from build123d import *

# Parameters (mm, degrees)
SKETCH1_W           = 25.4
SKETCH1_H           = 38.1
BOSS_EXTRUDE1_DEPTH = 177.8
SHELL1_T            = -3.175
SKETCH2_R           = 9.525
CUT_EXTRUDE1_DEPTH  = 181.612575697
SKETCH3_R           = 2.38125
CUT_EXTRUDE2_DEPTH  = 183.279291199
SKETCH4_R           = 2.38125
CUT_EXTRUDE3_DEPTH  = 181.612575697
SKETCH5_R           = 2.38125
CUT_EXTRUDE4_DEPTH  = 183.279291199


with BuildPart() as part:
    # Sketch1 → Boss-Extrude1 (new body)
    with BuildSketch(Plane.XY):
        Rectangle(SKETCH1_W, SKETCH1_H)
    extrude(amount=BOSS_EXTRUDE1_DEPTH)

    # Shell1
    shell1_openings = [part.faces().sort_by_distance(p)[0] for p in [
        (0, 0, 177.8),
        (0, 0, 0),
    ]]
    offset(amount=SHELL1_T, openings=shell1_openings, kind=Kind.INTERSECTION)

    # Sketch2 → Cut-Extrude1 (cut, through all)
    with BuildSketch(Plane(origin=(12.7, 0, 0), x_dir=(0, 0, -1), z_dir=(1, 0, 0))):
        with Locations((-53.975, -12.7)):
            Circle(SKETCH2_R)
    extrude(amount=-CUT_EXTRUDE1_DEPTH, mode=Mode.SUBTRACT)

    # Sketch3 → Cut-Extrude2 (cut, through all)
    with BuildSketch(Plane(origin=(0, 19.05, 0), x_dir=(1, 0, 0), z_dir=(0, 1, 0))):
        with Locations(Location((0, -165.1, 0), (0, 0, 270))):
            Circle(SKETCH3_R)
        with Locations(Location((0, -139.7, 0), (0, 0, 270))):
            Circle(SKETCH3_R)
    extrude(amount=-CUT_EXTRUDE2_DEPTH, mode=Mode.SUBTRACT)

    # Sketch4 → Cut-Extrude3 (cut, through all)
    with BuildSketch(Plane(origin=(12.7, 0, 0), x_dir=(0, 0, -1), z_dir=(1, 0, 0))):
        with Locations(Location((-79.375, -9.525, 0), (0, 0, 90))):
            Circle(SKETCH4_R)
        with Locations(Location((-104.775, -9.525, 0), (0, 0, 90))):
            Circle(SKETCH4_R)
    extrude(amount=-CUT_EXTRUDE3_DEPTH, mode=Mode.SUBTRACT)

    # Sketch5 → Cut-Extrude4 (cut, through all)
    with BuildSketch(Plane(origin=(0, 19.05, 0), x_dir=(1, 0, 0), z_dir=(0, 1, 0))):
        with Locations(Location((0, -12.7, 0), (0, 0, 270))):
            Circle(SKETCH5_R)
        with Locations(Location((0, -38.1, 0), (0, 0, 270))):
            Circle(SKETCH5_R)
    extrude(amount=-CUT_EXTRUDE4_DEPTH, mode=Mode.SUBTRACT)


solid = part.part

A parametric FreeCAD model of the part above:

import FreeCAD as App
import Part
import Sketcher
from FreeCAD import Vector
Q = App.Units.Quantity


def faces_at(feature, points):
    """Names of the faces that lie closest to the given points."""
    faces = feature.Shape.Faces
    near = lambda p: min(range(len(faces)), key=lambda i: faces[i].distToShape(Part.Vertex(*p))[0])
    return sorted({f"Face{near(p) + 1}" for p in points})

doc = App.newDocument("Part")
params = doc.addObject("Spreadsheet::Sheet", "Params")
for row, (alias, value) in enumerate([
    ("sketch1_width", "1 in"),
    ("sketch1_height", "1.5 in"),
    ("pad1_length", "7 in"),
    ("thickness_wall", "0.125 in"),
    ("sketch2_diameter", "0.75 in"),
    ("sketch3_diameter", "0.1875 in"),
    ("sketch4_diameter", "0.1875 in"),
    ("sketch5_diameter", "0.1875 in"),
], start=1):
    params.set(f"A{row}", alias)
    params.set(f"B{row}", "=" + value)
    params.setAlias(f"B{row}", alias)

body = doc.addObject("PartDesign::Body", "Body")

# Sketch on XY plane
sketch1 = body.newObject("Sketcher::SketchObject", "Sketch")
sketch1.AttachmentSupport = (doc.getObject("XY_Plane"), [""])
sketch1.MapMode = "FlatFace"
sketch1.addGeometry(Part.LineSegment(Vector(-13, 19, 0), Vector(-13, -19, 0)), False)
sketch1.addGeometry(Part.LineSegment(Vector(-13, -19, 0), Vector(13, -19, 0)), False)
sketch1.addGeometry(Part.LineSegment(Vector(13, -19, 0), Vector(13, 19, 0)), False)
sketch1.addGeometry(Part.LineSegment(Vector(13, 19, 0), Vector(-13, 19, 0)), False)
sketch1.addConstraint(Sketcher.Constraint("Coincident", 0, 2, 1, 1))
sketch1.addConstraint(Sketcher.Constraint("Coincident", 1, 2, 2, 1))
sketch1.addConstraint(Sketcher.Constraint("Coincident", 2, 2, 3, 1))
sketch1.addConstraint(Sketcher.Constraint("Coincident", 3, 2, 0, 1))
sketch1.addConstraint(Sketcher.Constraint("Vertical", 0))
sketch1.addConstraint(Sketcher.Constraint("Horizontal", 1))
sketch1.addConstraint(Sketcher.Constraint("Vertical", 2))
sketch1.addConstraint(Sketcher.Constraint("Horizontal", 3))
sketch1.addConstraint(Sketcher.Constraint("Symmetric", 0, 2, 2, 2, -1, 1))
sketch1.addConstraint(Sketcher.Constraint("DistanceX", 1, 1, 1, 2, Q("1 in")))
sketch1.addConstraint(Sketcher.Constraint("DistanceY", 0, 2, 0, 1, Q("1.5 in")))
sketch1.setExpression("Constraints[9]", "Params.sketch1_width")
sketch1.setExpression("Constraints[10]", "Params.sketch1_height")
pad1 = body.newObject("PartDesign::Pad", "Pad")
pad1.Profile = sketch1
pad1.setExpression("Length", "Params.pad1_length")
doc.recompute()

thickness = body.newObject("PartDesign::Thickness", "Thickness")
thickness.Base = (pad1, faces_at(pad1, [(0, 0, 177.8), (0, 0, 0)]))
thickness.setExpression("Value", "Params.thickness_wall")
thickness.Reversed = True
thickness.Join = "Intersection"

# Sketch on YZ plane
sketch2 = body.newObject("Sketcher::SketchObject", "Sketch001")
sketch2.AttachmentSupport = (doc.getObject("YZ_Plane"), [""])
sketch2.MapMode = "FlatFace"
sketch2.AttachmentOffset = App.Placement(Vector(0, 0, 0.5 * 25.4), App.Rotation())
sketch2.addGeometry(Part.Circle(Vector(-13, 54, 0), Vector(0, 0, 1), 10), False)
sketch2.addConstraint(Sketcher.Constraint("Diameter", 0, Q("0.75 in")))
sketch2.addConstraint(Sketcher.Constraint("DistanceX", 0, 3, -1, 1, Q("0.5 in")))
sketch2.addConstraint(Sketcher.Constraint("DistanceY", -1, 1, 0, 3, Q("2.125 in")))
sketch2.setExpression("Constraints[0]", "Params.sketch2_diameter")
pocket1 = body.newObject("PartDesign::Pocket", "Pocket")
pocket1.Profile = sketch2
pocket1.Type = "ThroughAll"

# Sketch on XZ plane
sketch3 = body.newObject("Sketcher::SketchObject", "Sketch002")
sketch3.AttachmentSupport = (doc.getObject("XZ_Plane"), [""])
sketch3.MapMode = "FlatFace"
sketch3.AttachmentOffset = App.Placement(Vector(0, 0, -0.75 * 25.4), App.Rotation())
sketch3.addGeometry(Part.Circle(Vector(0, 165.1, 0), Vector(0, 0, 1), 2.4), False)
sketch3.addGeometry(Part.Circle(Vector(0, 139.7, 0), Vector(0, 0, 1), 2.4), False)
sketch3.addConstraint(Sketcher.Constraint("Equal", 0, 1))
sketch3.addConstraint(Sketcher.Constraint("PointOnObject", 0, 3, -2))
sketch3.addConstraint(Sketcher.Constraint("PointOnObject", 1, 3, -2))
sketch3.addConstraint(Sketcher.Constraint("Diameter", 0, Q("0.1875 in")))
sketch3.addConstraint(Sketcher.Constraint("DistanceY", 1, 3, 0, 3, Q("1 in")))
sketch3.addConstraint(Sketcher.Constraint("DistanceY", -1, 1, 0, 3, Q("6.5 in")))
sketch3.setExpression("Constraints[3]", "Params.sketch3_diameter")
pocket2 = body.newObject("PartDesign::Pocket", "Pocket001")
pocket2.Profile = sketch3
pocket2.Type = "ThroughAll"
pocket2.Reversed = True

# Sketch on YZ plane
sketch4 = body.newObject("Sketcher::SketchObject", "Sketch003")
sketch4.AttachmentSupport = (doc.getObject("YZ_Plane"), [""])
sketch4.MapMode = "FlatFace"
sketch4.AttachmentOffset = App.Placement(Vector(0, 0, 0.5 * 25.4), App.Rotation())
sketch4.addGeometry(Part.Circle(Vector(-9.5, 79.4, 0), Vector(0, 0, 1), 2.4), False)
sketch4.addGeometry(Part.Circle(Vector(-9.5, 104.8, 0), Vector(0, 0, 1), 2.4), False)
sketch4.addConstraint(Sketcher.Constraint("Equal", 0, 1))
sketch4.addConstraint(Sketcher.Constraint("Vertical", 0, 3, 1, 3))
sketch4.addConstraint(Sketcher.Constraint("Diameter", 0, Q("0.1875 in")))
sketch4.addConstraint(Sketcher.Constraint("DistanceY", 0, 3, 1, 3, Q("1 in")))
sketch4.addConstraint(Sketcher.Constraint("DistanceX", 0, 3, -1, 1, Q("0.375 in")))
sketch4.addConstraint(Sketcher.Constraint("DistanceY", -1, 1, 0, 3, Q("3.125 in")))
sketch4.setExpression("Constraints[2]", "Params.sketch4_diameter")
pocket3 = body.newObject("PartDesign::Pocket", "Pocket002")
pocket3.Profile = sketch4
pocket3.Type = "ThroughAll"

# Sketch on XZ plane
sketch5 = body.newObject("Sketcher::SketchObject", "Sketch004")
sketch5.AttachmentSupport = (doc.getObject("XZ_Plane"), [""])
sketch5.MapMode = "FlatFace"
sketch5.AttachmentOffset = App.Placement(Vector(0, 0, -0.75 * 25.4), App.Rotation())
sketch5.addGeometry(Part.Circle(Vector(0, 12.7, 0), Vector(0, 0, 1), 2.4), False)
sketch5.addGeometry(Part.Circle(Vector(0, 38.1, 0), Vector(0, 0, 1), 2.4), False)
sketch5.addConstraint(Sketcher.Constraint("Equal", 0, 1))
sketch5.addConstraint(Sketcher.Constraint("PointOnObject", 0, 3, -2))
sketch5.addConstraint(Sketcher.Constraint("PointOnObject", 1, 3, -2))
sketch5.addConstraint(Sketcher.Constraint("Diameter", 0, Q("0.1875 in")))
sketch5.addConstraint(Sketcher.Constraint("DistanceY", 0, 3, 1, 3, Q("1 in")))
sketch5.addConstraint(Sketcher.Constraint("DistanceY", -1, 1, 0, 3, Q("0.5 in")))
sketch5.setExpression("Constraints[3]", "Params.sketch5_diameter")
pocket4 = body.newObject("PartDesign::Pocket", "Pocket003")
pocket4.Profile = sketch5
pocket4.Type = "ThroughAll"
pocket4.Reversed = True

doc.recompute()
